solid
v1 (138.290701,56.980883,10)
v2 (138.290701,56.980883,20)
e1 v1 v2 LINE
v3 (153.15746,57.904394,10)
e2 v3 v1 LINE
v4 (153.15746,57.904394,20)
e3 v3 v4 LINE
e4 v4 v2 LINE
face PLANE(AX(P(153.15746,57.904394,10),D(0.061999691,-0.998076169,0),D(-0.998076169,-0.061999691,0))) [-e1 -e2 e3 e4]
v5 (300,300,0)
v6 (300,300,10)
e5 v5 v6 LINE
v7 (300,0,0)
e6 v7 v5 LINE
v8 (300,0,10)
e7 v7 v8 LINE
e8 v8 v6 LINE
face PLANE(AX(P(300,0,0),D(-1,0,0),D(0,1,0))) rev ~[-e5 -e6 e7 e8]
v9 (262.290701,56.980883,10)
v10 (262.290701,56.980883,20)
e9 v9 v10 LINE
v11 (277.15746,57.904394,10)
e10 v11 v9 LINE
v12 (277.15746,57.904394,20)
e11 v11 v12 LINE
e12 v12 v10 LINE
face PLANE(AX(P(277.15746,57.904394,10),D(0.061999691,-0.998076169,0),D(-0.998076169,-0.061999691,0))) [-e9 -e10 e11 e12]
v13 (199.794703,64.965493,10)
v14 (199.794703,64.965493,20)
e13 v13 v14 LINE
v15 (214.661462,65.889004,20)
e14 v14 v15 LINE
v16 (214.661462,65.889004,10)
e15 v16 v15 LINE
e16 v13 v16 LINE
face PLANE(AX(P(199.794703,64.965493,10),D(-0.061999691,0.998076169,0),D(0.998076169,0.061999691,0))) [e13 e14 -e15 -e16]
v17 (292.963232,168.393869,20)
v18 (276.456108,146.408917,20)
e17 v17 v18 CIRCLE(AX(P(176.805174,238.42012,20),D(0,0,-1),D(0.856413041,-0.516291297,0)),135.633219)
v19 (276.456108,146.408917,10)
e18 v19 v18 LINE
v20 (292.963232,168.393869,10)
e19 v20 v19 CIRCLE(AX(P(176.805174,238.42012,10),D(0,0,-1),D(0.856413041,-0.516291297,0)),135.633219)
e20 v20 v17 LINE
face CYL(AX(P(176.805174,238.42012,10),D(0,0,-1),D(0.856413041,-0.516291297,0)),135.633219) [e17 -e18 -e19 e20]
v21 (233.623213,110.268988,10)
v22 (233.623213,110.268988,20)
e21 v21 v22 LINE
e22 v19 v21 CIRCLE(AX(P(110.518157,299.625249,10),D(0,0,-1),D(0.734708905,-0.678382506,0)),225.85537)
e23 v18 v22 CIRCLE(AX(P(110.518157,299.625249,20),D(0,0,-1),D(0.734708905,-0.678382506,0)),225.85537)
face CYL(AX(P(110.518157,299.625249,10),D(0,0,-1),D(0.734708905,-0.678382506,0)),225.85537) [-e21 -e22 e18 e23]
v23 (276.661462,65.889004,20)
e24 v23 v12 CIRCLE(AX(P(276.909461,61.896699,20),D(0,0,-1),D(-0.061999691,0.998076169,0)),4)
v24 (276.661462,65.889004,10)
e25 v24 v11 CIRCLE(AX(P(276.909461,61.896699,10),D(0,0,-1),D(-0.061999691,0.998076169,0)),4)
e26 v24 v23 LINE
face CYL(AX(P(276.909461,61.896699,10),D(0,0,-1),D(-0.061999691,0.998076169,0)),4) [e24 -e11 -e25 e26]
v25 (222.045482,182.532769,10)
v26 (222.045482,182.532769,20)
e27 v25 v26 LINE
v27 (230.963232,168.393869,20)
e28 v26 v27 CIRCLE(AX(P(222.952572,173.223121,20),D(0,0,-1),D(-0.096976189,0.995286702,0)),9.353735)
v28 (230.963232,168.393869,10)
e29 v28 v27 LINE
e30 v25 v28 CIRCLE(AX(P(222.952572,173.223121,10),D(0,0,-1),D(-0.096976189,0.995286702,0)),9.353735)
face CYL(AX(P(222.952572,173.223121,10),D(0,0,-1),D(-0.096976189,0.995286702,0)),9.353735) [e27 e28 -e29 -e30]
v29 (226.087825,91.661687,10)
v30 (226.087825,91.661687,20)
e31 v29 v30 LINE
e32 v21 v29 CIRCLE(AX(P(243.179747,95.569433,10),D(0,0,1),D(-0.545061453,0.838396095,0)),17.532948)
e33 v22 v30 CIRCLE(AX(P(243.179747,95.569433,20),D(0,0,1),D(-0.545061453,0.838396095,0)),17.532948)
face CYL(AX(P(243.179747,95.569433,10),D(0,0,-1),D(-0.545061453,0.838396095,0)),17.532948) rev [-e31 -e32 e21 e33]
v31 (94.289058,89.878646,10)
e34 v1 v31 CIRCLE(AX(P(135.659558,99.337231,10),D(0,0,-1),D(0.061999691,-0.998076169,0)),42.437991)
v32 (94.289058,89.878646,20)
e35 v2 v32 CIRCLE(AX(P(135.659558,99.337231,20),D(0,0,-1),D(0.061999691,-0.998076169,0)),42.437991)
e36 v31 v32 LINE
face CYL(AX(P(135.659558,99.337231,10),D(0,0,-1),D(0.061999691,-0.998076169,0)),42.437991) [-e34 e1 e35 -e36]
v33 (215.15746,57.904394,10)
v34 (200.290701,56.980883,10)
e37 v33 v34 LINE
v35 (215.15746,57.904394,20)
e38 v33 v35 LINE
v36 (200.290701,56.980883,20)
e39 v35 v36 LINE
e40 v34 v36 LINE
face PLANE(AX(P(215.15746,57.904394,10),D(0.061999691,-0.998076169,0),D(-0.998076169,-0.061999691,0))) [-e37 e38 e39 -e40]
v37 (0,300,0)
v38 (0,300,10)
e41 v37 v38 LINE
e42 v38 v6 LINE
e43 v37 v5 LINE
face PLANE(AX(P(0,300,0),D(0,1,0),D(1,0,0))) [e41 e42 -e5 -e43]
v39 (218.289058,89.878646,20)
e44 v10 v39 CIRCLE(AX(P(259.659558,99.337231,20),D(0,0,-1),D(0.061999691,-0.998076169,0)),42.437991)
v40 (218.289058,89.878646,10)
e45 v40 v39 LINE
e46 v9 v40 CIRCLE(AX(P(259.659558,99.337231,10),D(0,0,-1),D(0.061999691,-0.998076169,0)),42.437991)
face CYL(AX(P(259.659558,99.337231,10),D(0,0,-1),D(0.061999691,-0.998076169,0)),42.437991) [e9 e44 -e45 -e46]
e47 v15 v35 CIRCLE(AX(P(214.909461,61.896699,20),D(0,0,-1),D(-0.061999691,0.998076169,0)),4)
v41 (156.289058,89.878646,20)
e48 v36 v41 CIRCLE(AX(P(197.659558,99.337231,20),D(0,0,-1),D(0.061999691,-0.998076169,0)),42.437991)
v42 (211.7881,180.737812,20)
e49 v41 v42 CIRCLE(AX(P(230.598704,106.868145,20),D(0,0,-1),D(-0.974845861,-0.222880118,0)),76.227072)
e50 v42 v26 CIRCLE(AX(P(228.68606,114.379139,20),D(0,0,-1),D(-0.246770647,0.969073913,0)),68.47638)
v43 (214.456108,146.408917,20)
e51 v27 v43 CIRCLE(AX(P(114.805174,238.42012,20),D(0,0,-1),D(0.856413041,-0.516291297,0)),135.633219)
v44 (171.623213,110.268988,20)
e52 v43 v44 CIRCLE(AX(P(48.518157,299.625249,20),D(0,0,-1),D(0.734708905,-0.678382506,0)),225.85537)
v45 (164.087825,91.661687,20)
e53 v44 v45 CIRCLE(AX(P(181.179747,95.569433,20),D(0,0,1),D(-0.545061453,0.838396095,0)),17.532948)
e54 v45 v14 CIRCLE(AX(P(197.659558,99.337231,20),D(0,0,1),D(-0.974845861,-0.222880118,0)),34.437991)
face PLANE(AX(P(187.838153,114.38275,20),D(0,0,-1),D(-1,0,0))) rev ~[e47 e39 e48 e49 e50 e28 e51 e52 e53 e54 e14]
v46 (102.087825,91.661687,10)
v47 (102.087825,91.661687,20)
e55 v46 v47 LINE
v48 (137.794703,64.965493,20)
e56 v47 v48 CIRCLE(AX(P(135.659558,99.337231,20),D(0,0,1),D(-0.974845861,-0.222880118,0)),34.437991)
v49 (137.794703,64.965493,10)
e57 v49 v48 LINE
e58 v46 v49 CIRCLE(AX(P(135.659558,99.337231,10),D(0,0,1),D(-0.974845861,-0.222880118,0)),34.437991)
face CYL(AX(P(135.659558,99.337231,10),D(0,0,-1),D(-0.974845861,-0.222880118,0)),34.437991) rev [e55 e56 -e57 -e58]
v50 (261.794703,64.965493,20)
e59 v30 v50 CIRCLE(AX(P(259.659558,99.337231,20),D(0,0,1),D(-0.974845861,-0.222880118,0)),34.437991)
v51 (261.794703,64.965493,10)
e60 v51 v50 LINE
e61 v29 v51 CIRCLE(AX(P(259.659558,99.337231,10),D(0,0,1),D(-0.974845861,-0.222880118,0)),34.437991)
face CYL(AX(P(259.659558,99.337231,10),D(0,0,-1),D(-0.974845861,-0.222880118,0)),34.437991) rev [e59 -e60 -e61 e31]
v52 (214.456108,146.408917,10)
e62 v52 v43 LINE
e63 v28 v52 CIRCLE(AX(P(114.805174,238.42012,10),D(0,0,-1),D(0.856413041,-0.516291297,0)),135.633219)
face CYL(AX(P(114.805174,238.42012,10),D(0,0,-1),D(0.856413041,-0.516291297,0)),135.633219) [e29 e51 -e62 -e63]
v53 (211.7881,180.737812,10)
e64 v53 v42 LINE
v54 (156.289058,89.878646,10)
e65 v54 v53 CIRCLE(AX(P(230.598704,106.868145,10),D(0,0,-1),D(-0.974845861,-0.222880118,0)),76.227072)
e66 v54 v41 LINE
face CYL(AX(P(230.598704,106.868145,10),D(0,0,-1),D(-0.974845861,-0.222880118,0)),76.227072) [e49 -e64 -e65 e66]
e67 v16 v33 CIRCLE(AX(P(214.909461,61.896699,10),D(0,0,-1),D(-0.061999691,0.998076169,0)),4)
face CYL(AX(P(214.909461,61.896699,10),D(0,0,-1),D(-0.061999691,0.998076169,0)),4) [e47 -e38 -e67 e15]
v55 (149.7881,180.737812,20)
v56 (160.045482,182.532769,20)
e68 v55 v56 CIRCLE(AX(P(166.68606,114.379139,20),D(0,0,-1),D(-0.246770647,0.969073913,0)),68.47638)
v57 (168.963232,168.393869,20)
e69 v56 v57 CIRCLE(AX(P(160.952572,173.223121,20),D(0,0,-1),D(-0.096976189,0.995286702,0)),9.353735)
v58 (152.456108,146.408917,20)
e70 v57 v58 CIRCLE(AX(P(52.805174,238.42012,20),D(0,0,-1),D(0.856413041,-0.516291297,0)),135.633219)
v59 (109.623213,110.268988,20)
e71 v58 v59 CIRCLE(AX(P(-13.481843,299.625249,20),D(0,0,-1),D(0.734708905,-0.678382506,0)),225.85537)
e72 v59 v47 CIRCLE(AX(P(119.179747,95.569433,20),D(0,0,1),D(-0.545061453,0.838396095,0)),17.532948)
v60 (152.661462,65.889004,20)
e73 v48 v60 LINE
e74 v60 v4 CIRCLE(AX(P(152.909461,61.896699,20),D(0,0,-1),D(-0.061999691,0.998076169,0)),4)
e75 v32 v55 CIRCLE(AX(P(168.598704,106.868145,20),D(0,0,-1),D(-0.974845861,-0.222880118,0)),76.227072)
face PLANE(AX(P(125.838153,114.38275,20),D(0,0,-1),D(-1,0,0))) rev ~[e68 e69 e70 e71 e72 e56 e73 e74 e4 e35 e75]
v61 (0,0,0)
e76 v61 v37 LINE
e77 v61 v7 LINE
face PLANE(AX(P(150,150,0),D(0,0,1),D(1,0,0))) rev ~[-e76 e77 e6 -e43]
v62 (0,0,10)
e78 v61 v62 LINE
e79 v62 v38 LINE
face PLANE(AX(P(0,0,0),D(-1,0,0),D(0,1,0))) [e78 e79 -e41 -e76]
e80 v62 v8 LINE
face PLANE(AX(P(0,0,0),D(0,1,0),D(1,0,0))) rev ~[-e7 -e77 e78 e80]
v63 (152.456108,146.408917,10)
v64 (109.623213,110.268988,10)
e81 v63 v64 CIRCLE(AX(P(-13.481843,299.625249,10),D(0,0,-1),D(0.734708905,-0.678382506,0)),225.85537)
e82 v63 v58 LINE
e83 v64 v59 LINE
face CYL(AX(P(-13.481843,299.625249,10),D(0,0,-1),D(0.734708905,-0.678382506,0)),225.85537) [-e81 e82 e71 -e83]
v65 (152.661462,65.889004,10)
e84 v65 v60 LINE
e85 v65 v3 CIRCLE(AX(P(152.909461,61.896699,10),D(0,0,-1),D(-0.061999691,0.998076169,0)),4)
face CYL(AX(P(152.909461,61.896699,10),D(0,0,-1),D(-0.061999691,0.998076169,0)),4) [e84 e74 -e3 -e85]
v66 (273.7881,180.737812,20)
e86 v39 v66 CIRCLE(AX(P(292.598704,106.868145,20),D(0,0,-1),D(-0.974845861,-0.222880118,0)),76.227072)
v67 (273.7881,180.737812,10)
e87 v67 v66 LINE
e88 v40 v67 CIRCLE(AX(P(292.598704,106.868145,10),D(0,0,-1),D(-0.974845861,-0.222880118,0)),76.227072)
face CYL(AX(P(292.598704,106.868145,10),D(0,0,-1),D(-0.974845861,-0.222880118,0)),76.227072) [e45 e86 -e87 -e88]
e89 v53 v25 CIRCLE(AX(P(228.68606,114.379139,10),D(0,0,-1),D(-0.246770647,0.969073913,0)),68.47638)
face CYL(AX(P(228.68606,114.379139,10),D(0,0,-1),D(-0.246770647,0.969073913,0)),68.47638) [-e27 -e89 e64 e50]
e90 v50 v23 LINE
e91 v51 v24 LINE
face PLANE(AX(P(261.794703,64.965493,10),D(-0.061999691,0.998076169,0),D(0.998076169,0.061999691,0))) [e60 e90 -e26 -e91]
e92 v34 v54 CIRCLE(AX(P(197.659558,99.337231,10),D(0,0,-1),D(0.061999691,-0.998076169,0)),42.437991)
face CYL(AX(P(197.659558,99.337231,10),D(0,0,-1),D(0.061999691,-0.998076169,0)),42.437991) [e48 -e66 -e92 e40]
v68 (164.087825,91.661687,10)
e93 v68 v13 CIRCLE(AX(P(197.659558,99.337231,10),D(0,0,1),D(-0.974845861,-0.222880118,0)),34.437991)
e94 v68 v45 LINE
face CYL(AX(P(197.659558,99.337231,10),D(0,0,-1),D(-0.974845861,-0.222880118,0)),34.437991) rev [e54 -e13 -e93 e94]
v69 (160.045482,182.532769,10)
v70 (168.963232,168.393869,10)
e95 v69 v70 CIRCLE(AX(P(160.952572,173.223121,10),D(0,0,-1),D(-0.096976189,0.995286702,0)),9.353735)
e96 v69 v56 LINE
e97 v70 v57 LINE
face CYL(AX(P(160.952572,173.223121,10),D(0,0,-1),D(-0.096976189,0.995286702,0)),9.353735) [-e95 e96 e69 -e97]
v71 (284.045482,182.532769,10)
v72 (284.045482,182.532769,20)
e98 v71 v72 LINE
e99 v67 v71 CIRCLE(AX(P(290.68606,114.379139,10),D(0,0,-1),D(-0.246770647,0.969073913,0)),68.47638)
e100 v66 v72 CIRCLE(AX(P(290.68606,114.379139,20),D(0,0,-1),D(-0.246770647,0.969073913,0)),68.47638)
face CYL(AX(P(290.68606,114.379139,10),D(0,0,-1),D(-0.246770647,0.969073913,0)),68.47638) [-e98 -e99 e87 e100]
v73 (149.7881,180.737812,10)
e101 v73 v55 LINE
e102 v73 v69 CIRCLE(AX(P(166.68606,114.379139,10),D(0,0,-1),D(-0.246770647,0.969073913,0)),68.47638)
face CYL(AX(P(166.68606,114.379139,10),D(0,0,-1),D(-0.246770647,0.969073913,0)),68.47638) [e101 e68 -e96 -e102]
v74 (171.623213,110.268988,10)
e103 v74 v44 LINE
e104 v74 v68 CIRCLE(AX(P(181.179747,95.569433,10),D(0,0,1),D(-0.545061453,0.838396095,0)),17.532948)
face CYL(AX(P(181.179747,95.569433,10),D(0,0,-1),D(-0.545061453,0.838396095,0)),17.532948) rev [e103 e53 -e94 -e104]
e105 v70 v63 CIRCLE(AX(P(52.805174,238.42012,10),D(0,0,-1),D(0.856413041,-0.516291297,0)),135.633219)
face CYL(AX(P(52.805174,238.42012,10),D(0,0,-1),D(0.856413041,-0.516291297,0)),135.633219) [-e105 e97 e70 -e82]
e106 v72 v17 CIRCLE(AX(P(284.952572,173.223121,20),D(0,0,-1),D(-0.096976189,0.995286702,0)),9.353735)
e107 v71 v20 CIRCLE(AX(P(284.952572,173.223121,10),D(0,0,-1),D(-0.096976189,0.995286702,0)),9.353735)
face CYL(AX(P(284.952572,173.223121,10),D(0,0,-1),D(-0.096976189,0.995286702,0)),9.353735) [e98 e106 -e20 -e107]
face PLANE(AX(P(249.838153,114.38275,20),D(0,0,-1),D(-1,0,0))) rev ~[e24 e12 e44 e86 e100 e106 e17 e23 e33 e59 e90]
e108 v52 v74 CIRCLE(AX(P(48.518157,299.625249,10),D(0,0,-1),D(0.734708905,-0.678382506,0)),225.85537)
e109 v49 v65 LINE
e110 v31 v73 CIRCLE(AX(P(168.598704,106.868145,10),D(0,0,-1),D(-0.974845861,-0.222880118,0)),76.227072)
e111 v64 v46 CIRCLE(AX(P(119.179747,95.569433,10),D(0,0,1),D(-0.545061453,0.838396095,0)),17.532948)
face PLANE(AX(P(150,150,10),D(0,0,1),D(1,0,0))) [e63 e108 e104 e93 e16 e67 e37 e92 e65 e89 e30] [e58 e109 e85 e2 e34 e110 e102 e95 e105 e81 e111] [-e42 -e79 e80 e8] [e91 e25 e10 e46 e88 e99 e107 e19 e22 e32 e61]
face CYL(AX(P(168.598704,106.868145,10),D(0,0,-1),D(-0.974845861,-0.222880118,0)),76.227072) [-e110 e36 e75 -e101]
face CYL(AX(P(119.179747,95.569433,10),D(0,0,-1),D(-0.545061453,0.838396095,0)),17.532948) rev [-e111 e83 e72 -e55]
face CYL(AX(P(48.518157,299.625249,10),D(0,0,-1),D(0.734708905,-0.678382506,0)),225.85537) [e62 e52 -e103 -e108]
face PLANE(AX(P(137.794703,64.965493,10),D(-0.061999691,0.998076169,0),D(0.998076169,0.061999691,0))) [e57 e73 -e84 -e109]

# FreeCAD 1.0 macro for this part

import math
import FreeCAD as App
import Part
import Sketcher

V = App.Vector


def add_polygon(sketch, points):
    """Adds a closed chain of lines whose ends are joined by coincident constraints."""
    first, n = sketch.GeometryCount, len(points)
    for a, b in zip(points, points[1:] + points[:1]):
        sketch.addGeometry(Part.LineSegment(App.Vector(*a, 0), App.Vector(*b, 0)), False)
    for i in range(n):
        sketch.addConstraint(Sketcher.Constraint("Coincident", first + i, 2, first + (i + 1) % n, 1))

doc = App.newDocument("Part")
body = doc.addObject("PartDesign::Body", "Body")

# Sketch on XY plane
sketch1 = doc.addObject("Sketcher::SketchObject", "Sketch")
body.addObject(sketch1)
sketch1.AttachmentSupport = (doc.XY_Plane, [""])
sketch1.MapMode = "FlatFace"
add_polygon(sketch1, [(0, 300), (0, 0), (300, 0), (300, 300)])  # lines 0-3
sketch1.addConstraint([
    Sketcher.Constraint("Vertical", 0),
    Sketcher.Constraint("Horizontal", 1),
    Sketcher.Constraint("Vertical", 2),
    Sketcher.Constraint("Horizontal", 3),
    Sketcher.Constraint("Coincident", 0, 2, -1, 1),
    Sketcher.Constraint("Equal", 3, 0),
    Sketcher.Constraint("DistanceX", 1, 1, 1, 2, 300.0),
])
pad1 = doc.addObject("PartDesign::Pad", "Pad")
body.addObject(pad1)
pad1.Profile = sketch1
pad1.Length = 10

# Sketch on XY plane
sketch2 = doc.addObject("Sketcher::SketchObject", "Sketch001")
body.addObject(sketch2)
sketch2.AttachmentSupport = (doc.XY_Plane, [""])
sketch2.MapMode = "FlatFace"
sketch2.AttachmentOffset = App.Placement(V(0, 0, 10), App.Rotation())
sketch2.addGeometry([
    Part.LineSegment(V(138.290701, 56.980883, 0), V(153.15746, 57.904394, 0)),  # 0
    Part.ArcOfCircle(Part.Circle(V(152.909461, 61.896699, 0), V(0, 0, 1), 4), math.radians(-86.4454), math.radians(93.5546)),  # 1
    Part.LineSegment(V(152.661462, 65.889004, 0), V(137.794703, 64.965493, 0)),  # 2
    Part.ArcOfCircle(Part.Circle(V(135.659558, 99.337231, 0), V(0, 0, 1), 34.437991), math.radians(-167.121747), math.radians(-86.4454)),  # 3
    Part.ArcOfCircle(Part.Circle(V(119.179747, 95.569433, 0), V(0, 0, 1), 17.532948), math.radians(123.028863), math.radians(192.878253)),  # 4
    Part.ArcOfCircle(Part.Circle(V(-13.481843, 299.625249, 0), V(0, 0, 1), 225.85537), math.radians(-56.971137), math.radians(-42.717375)),  # 5
    Part.ArcOfCircle(Part.Circle(V(52.805174, 238.42012, 0), V(0, 0, 1), 135.633219), math.radians(-42.717375), math.radians(-31.083806)),  # 6
    Part.ArcOfCircle(Part.Circle(V(160.952572, 173.223121, 0), V(0, 0, 1), 9.353735), math.radians(-31.083806), math.radians(95.565072)),  # 7
    Part.ArcOfCircle(Part.Circle(V(166.68606, 114.379139, 0), V(0, 0, 1), 68.47638), math.radians(95.565072), math.radians(104.286498)),  # 8
    Part.ArcOfCircle(Part.Circle(V(168.598704, 106.868145, 0), V(0, 0, 1), 76.227072), math.radians(104.286498), math.radians(192.878253)),  # 9
    Part.ArcOfCircle(Part.Circle(V(135.659558, 99.337231, 0), V(0, 0, 1), 42.437991), math.radians(-167.121747), math.radians(-86.4454)),  # 10
    Part.LineSegment(V(200.290701, 56.980883, 0), V(215.15746, 57.904394, 0)),  # 11
    Part.ArcOfCircle(Part.Circle(V(214.909461, 61.896699, 0), V(0, 0, 1), 4), math.radians(-86.4454), math.radians(93.5546)),  # 12
    Part.LineSegment(V(214.661462, 65.889004, 0), V(199.794703, 64.965493, 0)),  # 13
    Part.ArcOfCircle(Part.Circle(V(197.659558, 99.337231, 0), V(0, 0, 1), 34.437991), math.radians(-167.121747), math.radians(-86.4454)),  # 14
    Part.ArcOfCircle(Part.Circle(V(181.179747, 95.569433, 0), V(0, 0, 1), 17.532948), math.radians(123.028863), math.radians(192.878253)),  # 15
    Part.ArcOfCircle(Part.Circle(V(48.518157, 299.625249, 0), V(0, 0, 1), 225.85537), math.radians(-56.971137), math.radians(-42.717375)),  # 16
    Part.ArcOfCircle(Part.Circle(V(114.805174, 238.42012, 0), V(0, 0, 1), 135.633219), math.radians(-42.717375), math.radians(-31.083806)),  # 17
    Part.ArcOfCircle(Part.Circle(V(222.952572, 173.223121, 0), V(0, 0, 1), 9.353735), math.radians(-31.083806), math.radians(95.565072)),  # 18
    Part.ArcOfCircle(Part.Circle(V(228.68606, 114.379139, 0), V(0, 0, 1), 68.47638), math.radians(95.565072), math.radians(104.286498)),  # 19
    Part.ArcOfCircle(Part.Circle(V(230.598704, 106.868145, 0), V(0, 0, 1), 76.227072), math.radians(104.286498), math.radians(192.878253)),  # 20
    Part.ArcOfCircle(Part.Circle(V(197.659558, 99.337231, 0), V(0, 0, 1), 42.437991), math.radians(-167.121747), math.radians(-86.4454)),  # 21
    Part.LineSegment(V(262.290701, 56.980883, 0), V(277.15746, 57.904394, 0)),  # 22
    Part.ArcOfCircle(Part.Circle(V(276.909461, 61.896699, 0), V(0, 0, 1), 4), math.radians(-86.4454), math.radians(93.5546)),  # 23
    Part.LineSegment(V(276.661462, 65.889004, 0), V(261.794703, 64.965493, 0)),  # 24
    Part.ArcOfCircle(Part.Circle(V(259.659558, 99.337231, 0), V(0, 0, 1), 34.437991), math.radians(-167.121747), math.radians(-86.4454)),  # 25
    Part.ArcOfCircle(Part.Circle(V(243.179747, 95.569433, 0), V(0, 0, 1), 17.532948), math.radians(123.028863), math.radians(192.878253)),  # 26
    Part.ArcOfCircle(Part.Circle(V(110.518157, 299.625249, 0), V(0, 0, 1), 225.85537), math.radians(-56.971137), math.radians(-42.717375)),  # 27
    Part.ArcOfCircle(Part.Circle(V(176.805174, 238.42012, 0), V(0, 0, 1), 135.633219), math.radians(-42.717375), math.radians(-31.083806)),  # 28
    Part.ArcOfCircle(Part.Circle(V(284.952572, 173.223121, 0), V(0, 0, 1), 9.353735), math.radians(-31.083806), math.radians(95.565072)),  # 29
    Part.ArcOfCircle(Part.Circle(V(290.68606, 114.379139, 0), V(0, 0, 1), 68.47638), math.radians(95.565072), math.radians(104.286498)),  # 30
    Part.ArcOfCircle(Part.Circle(V(292.598704, 106.868145, 0), V(0, 0, 1), 76.227072), math.radians(104.286498), math.radians(192.878253)),  # 31
    Part.ArcOfCircle(Part.Circle(V(259.659558, 99.337231, 0), V(0, 0, 1), 42.437991), math.radians(-167.121747), math.radians(-86.4454)),  # 32
], False)
sketch2.addConstraint([
    Sketcher.Constraint("Tangent", 0, 2, 1, 1),
    Sketcher.Constraint("Tangent", 1, 2, 2, 1),
    Sketcher.Constraint("Tangent", 2, 2, 3, 2),
    Sketcher.Constraint("Tangent", 3, 1, 4, 2),
    Sketcher.Constraint("Tangent", 4, 1, 5, 1),
    Sketcher.Constraint("Tangent", 5, 2, 6, 1),
    Sketcher.Constraint("Tangent", 6, 2, 7, 1),
    Sketcher.Constraint("Tangent", 7, 2, 8, 1),
    Sketcher.Constraint("Tangent", 8, 2, 9, 1),
    Sketcher.Constraint("Tangent", 9, 2, 10, 1),
    Sketcher.Constraint("Tangent", 10, 2, 0, 1),
    Sketcher.Constraint("Tangent", 11, 2, 12, 1),
    Sketcher.Constraint("Tangent", 12, 2, 13, 1),
    Sketcher.Constraint("Tangent", 13, 2, 14, 2),
    Sketcher.Constraint("Tangent", 14, 1, 15, 2),
    Sketcher.Constraint("Tangent", 15, 1, 16, 1),
    Sketcher.Constraint("Tangent", 16, 2, 17, 1),
    Sketcher.Constraint("Tangent", 17, 2, 18, 1),
    Sketcher.Constraint("Tangent", 18, 2, 19, 1),
    Sketcher.Constraint("Tangent", 19, 2, 20, 1),
    Sketcher.Constraint("Tangent", 20, 2, 21, 1),
    Sketcher.Constraint("Tangent", 21, 2, 11, 1),
    Sketcher.Constraint("Tangent", 22, 2, 23, 1),
    Sketcher.Constraint("Tangent", 23, 2, 24, 1),
    Sketcher.Constraint("Tangent", 24, 2, 25, 2),
    Sketcher.Constraint("Tangent", 25, 1, 26, 2),
    Sketcher.Constraint("Tangent", 26, 1, 27, 1),
    Sketcher.Constraint("Tangent", 27, 2, 28, 1),
    Sketcher.Constraint("Tangent", 28, 2, 29, 1),
    Sketcher.Constraint("Tangent", 29, 2, 30, 1),
    Sketcher.Constraint("Tangent", 30, 2, 31, 1),
    Sketcher.Constraint("Tangent", 31, 2, 32, 1),
    Sketcher.Constraint("Tangent", 32, 2, 22, 1),
    Sketcher.Constraint("Coincident", 10, 3, 3, 3),
    Sketcher.Constraint("Coincident", 21, 3, 14, 3),
    Sketcher.Constraint("Coincident", 32, 3, 25, 3),
    Sketcher.Constraint("Equal", 1, 12),
    Sketcher.Constraint("Equal", 3, 14),
    Sketcher.Constraint("Equal", 4, 15),
    Sketcher.Constraint("Equal", 5, 16),
    Sketcher.Constraint("Equal", 6, 17),
    Sketcher.Constraint("Equal", 7, 18),
    Sketcher.Constraint("Equal", 8, 19),
    Sketcher.Constraint("Equal", 9, 20),
    Sketcher.Constraint("Equal", 10, 21),
    Sketcher.Constraint("Equal", 12, 23),
    Sketcher.Constraint("Equal", 14, 25),
    Sketcher.Constraint("Equal", 15, 26),
    Sketcher.Constraint("Equal", 16, 27),
    Sketcher.Constraint("Equal", 17, 28),
    Sketcher.Constraint("Equal", 18, 29),
    Sketcher.Constraint("Equal", 19, 30),
    Sketcher.Constraint("Equal", 20, 31),
    Sketcher.Constraint("Equal", 21, 32),
    Sketcher.Constraint("Parallel", 0, 2),
    Sketcher.Constraint("Parallel", 2, 11),
    Sketcher.Constraint("Parallel", 13, 22),
    Sketcher.Constraint("Horizontal", 1, 3, 12, 3),
    Sketcher.Constraint("Horizontal", 10, 3, 14, 3),
    Sketcher.Constraint("Horizontal", 4, 3, 15, 3),
    Sketcher.Constraint("Horizontal", 5, 3, 16, 3),
    Sketcher.Constraint("Horizontal", 6, 3, 17, 3),
    Sketcher.Constraint("Horizontal", 7, 3, 18, 3),
    Sketcher.Constraint("Horizontal", 8, 3, 19, 3),
    Sketcher.Constraint("Horizontal", 12, 3, 23, 3),
    Sketcher.Constraint("Horizontal", 21, 3, 25, 3),
    Sketcher.Constraint("Horizontal", 15, 3, 26, 3),
    Sketcher.Constraint("Horizontal", 16, 3, 27, 3),
    Sketcher.Constraint("Horizontal", 17, 3, 28, 3),
    Sketcher.Constraint("Horizontal", 18, 3, 29, 3),
    Sketcher.Constraint("Horizontal", 19, 3, 30, 3),
    Sketcher.Constraint("Radius", 1, 4.0),
    Sketcher.Constraint("DistanceX", 1, 3, 12, 3, 62.0),
    Sketcher.Constraint("DistanceX", 12, 3, 23, 3, 62.0),
    Sketcher.Constraint("Radius", 3, 34.437991),
    Sketcher.Constraint("Radius", 4, 17.532948),
    Sketcher.Constraint("Radius", 5, 225.85537),
    Sketcher.Constraint("Radius", 6, 135.633219),
    Sketcher.Constraint("Radius", 8, 68.47638),
    Sketcher.Constraint("Radius", 9, 76.227072),
    Sketcher.Constraint("Radius", 7, 9.353735),
    Sketcher.Constraint("DistanceY", 7, 3, 6, 3, 65.196999),
    Sketcher.Constraint("DistanceX", 1, 3, 0, 2, 0.247999),
    Sketcher.Constraint("DistanceY", -1, 1, 1, 3, 61.896699),
    Sketcher.Constraint("DistanceX", -1, 1, 8, 2, 149.7881),
    Sketcher.Constraint("DistanceX", -1, 1, 10, 2, 138.290701),
    Sketcher.Constraint("DistanceX", 5, 3, 3, 3, 149.141401),
    Sketcher.Constraint("DistanceX", 1, 3, 8, 3, 13.7766),
    Sketcher.Constraint("DistanceX", 3, 3, 0, 2, 17.497901),
    Sketcher.Constraint("DistanceY", 3, 1, 4, 1, 18.607301),
])
pad2 = doc.addObject("PartDesign::Pad", "Pad001")
body.addObject(pad2)
pad2.Profile = sketch2
pad2.Length = 10

doc.recompute()
